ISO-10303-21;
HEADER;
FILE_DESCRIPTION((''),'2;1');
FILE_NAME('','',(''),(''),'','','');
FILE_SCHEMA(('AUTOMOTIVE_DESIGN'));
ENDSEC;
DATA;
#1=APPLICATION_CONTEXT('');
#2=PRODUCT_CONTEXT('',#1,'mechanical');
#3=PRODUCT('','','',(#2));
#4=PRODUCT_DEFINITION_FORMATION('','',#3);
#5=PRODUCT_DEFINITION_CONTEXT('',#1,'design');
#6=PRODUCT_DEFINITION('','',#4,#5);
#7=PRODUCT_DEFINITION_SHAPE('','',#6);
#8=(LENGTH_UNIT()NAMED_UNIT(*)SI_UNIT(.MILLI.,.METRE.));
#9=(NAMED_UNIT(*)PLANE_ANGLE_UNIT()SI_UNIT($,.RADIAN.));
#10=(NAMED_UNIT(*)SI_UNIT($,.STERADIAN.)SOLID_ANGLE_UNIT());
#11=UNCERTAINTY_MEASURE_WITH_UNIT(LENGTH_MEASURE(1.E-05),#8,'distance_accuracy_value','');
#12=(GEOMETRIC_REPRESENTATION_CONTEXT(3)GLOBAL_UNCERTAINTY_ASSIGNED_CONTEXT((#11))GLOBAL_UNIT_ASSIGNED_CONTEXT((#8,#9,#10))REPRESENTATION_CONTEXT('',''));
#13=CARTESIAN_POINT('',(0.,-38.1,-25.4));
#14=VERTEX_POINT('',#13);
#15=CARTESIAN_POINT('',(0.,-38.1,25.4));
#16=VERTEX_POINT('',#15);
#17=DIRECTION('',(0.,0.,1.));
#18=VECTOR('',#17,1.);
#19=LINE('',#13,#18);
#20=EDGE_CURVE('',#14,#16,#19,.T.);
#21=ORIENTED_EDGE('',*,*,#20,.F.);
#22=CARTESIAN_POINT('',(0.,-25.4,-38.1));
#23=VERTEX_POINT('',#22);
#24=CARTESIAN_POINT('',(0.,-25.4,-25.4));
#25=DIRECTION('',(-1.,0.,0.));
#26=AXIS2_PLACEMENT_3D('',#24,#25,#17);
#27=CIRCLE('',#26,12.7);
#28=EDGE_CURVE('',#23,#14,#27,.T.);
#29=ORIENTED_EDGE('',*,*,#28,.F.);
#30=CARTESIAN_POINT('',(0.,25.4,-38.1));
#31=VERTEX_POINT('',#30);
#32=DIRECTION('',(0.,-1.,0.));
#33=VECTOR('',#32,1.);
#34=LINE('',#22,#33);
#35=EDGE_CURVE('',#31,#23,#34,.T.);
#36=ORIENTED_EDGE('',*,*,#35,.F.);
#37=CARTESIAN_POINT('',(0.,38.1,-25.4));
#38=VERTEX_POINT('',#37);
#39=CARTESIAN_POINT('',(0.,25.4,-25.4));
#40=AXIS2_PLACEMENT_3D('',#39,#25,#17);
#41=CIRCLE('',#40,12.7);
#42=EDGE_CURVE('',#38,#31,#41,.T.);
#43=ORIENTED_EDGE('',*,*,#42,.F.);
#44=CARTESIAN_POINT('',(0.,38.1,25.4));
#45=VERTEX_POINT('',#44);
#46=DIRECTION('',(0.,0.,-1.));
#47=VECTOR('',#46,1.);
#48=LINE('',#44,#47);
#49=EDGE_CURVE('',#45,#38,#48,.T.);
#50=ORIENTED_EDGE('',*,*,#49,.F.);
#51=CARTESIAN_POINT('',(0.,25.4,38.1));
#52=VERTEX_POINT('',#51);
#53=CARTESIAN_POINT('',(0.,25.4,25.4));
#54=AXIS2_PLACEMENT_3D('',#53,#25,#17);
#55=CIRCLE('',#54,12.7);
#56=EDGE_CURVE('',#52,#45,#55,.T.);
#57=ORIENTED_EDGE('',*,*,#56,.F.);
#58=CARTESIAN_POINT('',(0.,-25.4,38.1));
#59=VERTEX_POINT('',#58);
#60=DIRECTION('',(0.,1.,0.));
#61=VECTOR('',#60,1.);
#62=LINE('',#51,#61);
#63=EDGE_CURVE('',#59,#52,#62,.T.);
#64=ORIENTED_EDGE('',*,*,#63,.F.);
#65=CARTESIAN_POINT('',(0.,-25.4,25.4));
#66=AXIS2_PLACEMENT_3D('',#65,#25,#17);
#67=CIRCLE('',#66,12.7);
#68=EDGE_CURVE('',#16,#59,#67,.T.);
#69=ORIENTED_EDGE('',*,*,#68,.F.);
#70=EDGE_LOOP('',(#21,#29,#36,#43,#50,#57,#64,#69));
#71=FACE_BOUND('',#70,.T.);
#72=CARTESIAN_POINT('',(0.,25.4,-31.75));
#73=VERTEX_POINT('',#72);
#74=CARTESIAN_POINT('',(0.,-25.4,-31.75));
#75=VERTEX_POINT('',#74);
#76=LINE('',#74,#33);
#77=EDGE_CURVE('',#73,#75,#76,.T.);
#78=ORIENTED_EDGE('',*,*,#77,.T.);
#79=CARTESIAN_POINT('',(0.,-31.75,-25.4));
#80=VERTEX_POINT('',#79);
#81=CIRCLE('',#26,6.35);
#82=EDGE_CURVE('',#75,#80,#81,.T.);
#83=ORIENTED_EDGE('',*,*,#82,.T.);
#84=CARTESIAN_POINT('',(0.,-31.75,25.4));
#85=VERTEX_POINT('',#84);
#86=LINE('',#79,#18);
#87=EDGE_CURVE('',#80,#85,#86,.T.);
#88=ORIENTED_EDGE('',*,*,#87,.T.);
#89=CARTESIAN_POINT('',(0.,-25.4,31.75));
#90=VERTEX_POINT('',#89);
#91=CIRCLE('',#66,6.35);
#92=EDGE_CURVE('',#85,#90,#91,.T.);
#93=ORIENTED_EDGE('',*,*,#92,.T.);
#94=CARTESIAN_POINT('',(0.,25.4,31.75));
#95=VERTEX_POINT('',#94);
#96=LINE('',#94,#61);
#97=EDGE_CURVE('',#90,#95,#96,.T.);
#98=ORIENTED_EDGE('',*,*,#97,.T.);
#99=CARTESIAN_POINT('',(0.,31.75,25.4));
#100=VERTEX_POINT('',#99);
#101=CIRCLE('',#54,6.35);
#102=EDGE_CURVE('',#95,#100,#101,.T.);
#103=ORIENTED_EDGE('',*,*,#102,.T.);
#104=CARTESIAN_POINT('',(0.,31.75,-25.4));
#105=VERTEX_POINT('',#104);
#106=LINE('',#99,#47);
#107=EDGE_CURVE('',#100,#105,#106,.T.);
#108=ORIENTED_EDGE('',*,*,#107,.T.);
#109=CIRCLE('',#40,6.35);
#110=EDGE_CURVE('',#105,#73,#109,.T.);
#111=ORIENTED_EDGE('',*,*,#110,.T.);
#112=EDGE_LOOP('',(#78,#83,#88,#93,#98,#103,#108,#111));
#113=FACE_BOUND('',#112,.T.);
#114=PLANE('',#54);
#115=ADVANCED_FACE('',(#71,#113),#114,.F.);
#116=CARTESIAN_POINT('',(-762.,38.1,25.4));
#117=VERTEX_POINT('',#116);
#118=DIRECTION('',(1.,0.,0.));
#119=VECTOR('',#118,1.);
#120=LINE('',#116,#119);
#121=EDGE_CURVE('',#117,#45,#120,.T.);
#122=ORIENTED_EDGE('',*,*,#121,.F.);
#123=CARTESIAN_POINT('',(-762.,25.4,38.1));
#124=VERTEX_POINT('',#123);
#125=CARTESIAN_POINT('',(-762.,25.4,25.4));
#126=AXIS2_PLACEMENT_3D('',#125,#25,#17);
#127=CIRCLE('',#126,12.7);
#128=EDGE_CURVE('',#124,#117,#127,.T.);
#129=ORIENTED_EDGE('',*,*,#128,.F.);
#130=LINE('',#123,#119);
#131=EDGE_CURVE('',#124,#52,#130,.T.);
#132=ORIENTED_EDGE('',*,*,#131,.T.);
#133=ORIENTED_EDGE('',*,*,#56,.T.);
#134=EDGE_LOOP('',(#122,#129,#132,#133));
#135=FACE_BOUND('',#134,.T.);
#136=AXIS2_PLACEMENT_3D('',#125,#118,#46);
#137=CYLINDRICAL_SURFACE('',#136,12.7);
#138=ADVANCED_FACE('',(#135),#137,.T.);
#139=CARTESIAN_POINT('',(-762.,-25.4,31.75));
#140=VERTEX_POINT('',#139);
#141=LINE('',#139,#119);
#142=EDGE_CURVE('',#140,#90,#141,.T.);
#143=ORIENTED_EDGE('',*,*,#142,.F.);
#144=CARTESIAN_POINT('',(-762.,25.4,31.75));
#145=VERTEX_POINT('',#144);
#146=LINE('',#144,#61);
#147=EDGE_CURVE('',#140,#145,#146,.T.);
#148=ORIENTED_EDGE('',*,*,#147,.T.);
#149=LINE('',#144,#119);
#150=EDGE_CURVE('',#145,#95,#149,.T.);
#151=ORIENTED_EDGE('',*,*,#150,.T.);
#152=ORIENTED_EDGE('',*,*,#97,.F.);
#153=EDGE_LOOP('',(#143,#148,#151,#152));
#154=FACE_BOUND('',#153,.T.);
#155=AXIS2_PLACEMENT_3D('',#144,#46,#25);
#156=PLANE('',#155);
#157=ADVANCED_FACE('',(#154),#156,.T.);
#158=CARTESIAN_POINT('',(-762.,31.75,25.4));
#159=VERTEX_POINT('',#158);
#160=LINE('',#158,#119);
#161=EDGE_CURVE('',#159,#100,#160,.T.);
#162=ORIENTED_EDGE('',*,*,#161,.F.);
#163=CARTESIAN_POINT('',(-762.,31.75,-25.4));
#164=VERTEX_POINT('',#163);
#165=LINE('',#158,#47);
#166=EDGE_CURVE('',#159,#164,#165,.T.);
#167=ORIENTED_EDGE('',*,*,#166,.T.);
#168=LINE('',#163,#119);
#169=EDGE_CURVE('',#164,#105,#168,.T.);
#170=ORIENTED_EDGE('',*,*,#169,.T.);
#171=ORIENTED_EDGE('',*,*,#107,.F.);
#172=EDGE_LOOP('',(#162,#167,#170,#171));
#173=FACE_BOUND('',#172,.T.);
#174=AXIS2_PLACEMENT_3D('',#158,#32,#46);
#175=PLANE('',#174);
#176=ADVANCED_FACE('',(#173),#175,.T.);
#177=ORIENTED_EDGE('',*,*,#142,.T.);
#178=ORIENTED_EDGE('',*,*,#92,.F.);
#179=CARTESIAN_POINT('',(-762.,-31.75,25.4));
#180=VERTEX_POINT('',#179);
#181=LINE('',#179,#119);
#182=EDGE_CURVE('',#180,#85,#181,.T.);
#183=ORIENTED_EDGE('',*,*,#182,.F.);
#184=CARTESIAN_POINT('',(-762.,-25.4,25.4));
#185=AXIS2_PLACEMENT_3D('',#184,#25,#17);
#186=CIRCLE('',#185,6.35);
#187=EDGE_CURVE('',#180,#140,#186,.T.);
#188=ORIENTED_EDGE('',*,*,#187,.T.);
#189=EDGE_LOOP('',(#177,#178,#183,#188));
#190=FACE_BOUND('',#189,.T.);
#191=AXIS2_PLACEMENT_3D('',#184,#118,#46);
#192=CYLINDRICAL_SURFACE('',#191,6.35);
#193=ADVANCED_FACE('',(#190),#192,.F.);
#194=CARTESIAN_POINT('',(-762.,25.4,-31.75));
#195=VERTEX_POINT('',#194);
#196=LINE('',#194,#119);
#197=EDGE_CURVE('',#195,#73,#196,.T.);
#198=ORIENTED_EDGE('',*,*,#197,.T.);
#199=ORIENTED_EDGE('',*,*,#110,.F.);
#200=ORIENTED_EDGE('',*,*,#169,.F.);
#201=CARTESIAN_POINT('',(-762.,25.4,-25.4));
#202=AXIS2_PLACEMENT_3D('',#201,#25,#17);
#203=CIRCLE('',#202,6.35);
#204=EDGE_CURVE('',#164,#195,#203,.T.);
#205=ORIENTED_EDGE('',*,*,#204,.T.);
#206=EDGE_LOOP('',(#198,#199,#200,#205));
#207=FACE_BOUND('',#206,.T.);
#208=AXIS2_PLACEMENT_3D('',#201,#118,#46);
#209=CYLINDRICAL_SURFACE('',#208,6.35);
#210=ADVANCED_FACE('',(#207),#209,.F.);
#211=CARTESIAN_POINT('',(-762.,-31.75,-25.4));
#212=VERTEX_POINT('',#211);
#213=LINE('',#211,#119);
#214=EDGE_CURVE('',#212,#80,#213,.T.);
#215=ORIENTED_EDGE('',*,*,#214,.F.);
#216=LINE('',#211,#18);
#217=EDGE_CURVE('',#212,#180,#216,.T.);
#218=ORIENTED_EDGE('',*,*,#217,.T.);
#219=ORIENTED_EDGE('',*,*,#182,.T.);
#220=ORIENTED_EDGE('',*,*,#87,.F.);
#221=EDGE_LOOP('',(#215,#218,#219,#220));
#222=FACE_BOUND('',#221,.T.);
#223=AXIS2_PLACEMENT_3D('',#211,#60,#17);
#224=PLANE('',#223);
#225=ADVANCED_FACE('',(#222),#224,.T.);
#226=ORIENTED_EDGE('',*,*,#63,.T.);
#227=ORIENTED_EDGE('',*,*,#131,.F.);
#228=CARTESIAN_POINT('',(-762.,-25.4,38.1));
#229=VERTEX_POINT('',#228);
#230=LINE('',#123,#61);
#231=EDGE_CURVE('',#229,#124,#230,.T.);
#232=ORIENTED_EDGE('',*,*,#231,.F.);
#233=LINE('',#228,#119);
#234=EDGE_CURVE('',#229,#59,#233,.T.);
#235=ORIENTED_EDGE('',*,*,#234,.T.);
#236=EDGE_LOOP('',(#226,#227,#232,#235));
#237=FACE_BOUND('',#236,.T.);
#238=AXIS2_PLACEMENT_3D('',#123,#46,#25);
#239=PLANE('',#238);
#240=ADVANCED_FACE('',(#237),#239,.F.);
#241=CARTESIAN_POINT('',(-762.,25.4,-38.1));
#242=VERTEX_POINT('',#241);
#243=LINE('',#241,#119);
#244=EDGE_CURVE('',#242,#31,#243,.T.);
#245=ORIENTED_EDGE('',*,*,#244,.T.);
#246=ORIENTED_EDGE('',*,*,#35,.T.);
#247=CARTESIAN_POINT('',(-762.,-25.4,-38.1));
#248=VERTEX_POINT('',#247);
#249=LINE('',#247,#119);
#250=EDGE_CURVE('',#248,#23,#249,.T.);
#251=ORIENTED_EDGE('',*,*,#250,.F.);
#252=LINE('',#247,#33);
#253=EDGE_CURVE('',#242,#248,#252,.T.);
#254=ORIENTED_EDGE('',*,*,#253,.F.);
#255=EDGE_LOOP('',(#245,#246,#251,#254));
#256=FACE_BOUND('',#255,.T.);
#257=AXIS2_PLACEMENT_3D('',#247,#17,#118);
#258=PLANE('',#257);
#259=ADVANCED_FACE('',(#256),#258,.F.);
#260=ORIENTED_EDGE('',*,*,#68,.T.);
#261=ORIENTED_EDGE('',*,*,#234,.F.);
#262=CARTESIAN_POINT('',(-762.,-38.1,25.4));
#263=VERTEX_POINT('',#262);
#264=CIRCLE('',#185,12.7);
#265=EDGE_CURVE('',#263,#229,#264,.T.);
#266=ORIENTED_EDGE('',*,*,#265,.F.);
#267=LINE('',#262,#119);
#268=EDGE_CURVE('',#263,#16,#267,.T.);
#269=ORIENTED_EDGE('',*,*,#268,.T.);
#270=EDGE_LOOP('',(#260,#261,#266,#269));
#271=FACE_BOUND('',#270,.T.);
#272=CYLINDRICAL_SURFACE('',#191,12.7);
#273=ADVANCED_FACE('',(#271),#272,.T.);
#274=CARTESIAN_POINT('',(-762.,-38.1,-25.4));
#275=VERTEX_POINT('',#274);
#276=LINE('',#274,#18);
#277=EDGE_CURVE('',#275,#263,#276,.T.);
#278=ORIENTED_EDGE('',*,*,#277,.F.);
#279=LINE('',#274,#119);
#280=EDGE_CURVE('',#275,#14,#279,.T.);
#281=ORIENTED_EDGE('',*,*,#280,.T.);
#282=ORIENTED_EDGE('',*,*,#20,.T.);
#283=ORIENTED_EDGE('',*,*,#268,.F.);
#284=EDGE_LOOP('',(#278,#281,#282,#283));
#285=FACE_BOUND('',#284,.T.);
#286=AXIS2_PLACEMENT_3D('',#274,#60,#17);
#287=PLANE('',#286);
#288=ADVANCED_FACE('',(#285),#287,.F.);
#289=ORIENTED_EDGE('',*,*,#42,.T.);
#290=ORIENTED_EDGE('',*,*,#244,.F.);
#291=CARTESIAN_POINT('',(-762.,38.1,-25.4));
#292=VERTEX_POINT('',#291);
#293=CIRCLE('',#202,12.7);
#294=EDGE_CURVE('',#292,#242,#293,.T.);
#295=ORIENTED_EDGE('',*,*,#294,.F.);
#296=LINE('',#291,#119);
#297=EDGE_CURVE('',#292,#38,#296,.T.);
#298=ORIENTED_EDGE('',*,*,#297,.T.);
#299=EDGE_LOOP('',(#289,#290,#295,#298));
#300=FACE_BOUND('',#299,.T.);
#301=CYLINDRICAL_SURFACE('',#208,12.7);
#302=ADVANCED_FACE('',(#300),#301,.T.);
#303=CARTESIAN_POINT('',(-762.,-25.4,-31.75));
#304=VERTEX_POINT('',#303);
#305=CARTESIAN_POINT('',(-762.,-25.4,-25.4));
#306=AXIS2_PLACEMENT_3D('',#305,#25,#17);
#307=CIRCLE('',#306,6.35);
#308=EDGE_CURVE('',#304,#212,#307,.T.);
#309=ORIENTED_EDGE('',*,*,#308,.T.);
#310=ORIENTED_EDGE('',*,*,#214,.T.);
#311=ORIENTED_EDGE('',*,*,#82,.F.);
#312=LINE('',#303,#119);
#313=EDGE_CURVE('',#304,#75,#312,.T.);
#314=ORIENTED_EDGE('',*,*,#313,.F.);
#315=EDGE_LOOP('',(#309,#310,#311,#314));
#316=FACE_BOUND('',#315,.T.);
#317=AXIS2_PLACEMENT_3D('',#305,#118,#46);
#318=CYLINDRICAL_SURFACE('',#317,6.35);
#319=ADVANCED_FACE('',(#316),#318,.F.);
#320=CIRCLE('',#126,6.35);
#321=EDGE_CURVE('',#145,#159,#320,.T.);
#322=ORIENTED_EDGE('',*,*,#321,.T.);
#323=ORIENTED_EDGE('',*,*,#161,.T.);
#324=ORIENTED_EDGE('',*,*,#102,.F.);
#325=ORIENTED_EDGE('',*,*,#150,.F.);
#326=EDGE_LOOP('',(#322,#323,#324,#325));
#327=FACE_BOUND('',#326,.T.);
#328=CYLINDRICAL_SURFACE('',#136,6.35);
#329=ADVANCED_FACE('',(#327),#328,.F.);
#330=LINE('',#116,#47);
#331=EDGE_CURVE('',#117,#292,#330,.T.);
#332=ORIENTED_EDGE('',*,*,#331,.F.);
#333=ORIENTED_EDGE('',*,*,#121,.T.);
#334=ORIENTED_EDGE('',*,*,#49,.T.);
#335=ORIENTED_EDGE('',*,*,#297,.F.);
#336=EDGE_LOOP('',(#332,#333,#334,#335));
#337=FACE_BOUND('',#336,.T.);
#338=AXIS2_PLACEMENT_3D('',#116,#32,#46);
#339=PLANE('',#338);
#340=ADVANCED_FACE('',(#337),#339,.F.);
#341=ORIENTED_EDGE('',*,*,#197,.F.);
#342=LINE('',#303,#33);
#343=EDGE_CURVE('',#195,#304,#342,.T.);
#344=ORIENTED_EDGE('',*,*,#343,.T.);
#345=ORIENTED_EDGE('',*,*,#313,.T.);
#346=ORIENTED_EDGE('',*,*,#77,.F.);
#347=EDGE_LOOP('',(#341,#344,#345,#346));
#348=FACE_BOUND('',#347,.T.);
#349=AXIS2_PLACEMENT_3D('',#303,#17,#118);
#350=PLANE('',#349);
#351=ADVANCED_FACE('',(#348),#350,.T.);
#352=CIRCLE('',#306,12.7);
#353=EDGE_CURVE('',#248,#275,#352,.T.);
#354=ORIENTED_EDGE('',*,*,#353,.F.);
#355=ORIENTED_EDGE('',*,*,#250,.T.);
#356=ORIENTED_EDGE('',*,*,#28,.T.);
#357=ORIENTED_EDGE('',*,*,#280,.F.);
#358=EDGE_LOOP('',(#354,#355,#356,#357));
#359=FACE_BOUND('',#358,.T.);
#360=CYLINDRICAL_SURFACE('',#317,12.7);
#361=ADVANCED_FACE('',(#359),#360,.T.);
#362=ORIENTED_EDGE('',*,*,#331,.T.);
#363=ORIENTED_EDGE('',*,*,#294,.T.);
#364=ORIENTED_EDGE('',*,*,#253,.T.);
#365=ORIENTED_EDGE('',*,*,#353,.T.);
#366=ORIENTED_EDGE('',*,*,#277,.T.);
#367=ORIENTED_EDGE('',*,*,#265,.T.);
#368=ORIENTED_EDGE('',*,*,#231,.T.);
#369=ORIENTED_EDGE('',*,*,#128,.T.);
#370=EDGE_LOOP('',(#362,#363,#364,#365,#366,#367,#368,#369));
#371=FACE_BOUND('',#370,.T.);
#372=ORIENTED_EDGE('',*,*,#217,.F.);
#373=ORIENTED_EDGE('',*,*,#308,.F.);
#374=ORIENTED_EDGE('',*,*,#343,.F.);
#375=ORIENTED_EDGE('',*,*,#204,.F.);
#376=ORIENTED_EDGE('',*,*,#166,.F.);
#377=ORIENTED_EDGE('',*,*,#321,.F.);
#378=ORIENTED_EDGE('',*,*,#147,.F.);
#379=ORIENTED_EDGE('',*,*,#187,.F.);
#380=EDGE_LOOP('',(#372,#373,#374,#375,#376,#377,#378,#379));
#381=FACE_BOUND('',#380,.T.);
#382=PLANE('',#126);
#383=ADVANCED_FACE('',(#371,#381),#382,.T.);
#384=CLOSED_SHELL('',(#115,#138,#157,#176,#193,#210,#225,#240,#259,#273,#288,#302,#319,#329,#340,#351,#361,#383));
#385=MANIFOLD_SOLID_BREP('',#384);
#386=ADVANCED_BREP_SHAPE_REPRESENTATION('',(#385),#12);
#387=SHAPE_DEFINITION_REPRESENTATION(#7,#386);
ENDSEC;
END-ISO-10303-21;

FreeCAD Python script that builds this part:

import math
import FreeCAD as App
import Part
import Sketcher
Q = App.Units.Quantity

doc = App.newDocument("Part")
body = doc.addObject("PartDesign::Body", "Body")

# Sketch on YZ plane
sketch1 = doc.addObject("Sketcher::SketchObject", "Sketch")
body.addObject(sketch1)
sketch1.AttachmentSupport = (doc.YZ_Plane, [""])
sketch1.MapMode = "FlatFace"
sketch1.addGeometry(Part.LineSegment(App.Vector(-38, -25, 0), App.Vector(-38, 25, 0)), False)
sketch1.addGeometry(Part.ArcOfCircle(Part.Circle(App.Vector(-25, 25, 0), App.Vector(0, 0, 1), 13), math.radians(90), math.radians(180)), False)
sketch1.addGeometry(Part.LineSegment(App.Vector(-25, 38, 0), App.Vector(25, 38, 0)), False)
sketch1.addGeometry(Part.ArcOfCircle(Part.Circle(App.Vector(25, 25, 0), App.Vector(0, 0, 1), 13), math.radians(0), math.radians(90)), False)
sketch1.addGeometry(Part.LineSegment(App.Vector(38, 25, 0), App.Vector(38, -25, 0)), False)
sketch1.addGeometry(Part.ArcOfCircle(Part.Circle(App.Vector(25, -25, 0), App.Vector(0, 0, 1), 13), math.radians(-90), math.radians(0)), False)
sketch1.addGeometry(Part.LineSegment(App.Vector(25, -38, 0), App.Vector(-25, -38, 0)), False)
sketch1.addGeometry(Part.ArcOfCircle(Part.Circle(App.Vector(-25, -25, 0), App.Vector(0, 0, 1), 13), math.radians(180), math.radians(270)), False)
sketch1.addGeometry(Part.LineSegment(App.Vector(-32, 25, 0), App.Vector(-32, -25, 0)), False)
sketch1.addGeometry(Part.ArcOfCircle(Part.Circle(App.Vector(-25, -25, 0), App.Vector(0, 0, 1), 6), math.radians(180), math.radians(270)), False)
sketch1.addGeometry(Part.LineSegment(App.Vector(-25, -32, 0), App.Vector(25, -32, 0)), False)
sketch1.addGeometry(Part.ArcOfCircle(Part.Circle(App.Vector(25, -25, 0), App.Vector(0, 0, 1), 6), math.radians(-90), math.radians(0)), False)
sketch1.addGeometry(Part.LineSegment(App.Vector(32, -25, 0), App.Vector(32, 25, 0)), False)
sketch1.addGeometry(Part.ArcOfCircle(Part.Circle(App.Vector(25, 25, 0), App.Vector(0, 0, 1), 6), math.radians(0), math.radians(90)), False)
sketch1.addGeometry(Part.LineSegment(App.Vector(25, 32, 0), App.Vector(-25, 32, 0)), False)
sketch1.addGeometry(Part.ArcOfCircle(Part.Circle(App.Vector(-25, 25, 0), App.Vector(0, 0, 1), 6), math.radians(90), math.radians(180)), False)
sketch1.addConstraint(Sketcher.Constraint("Tangent", 0, 2, 1, 2))
sketch1.addConstraint(Sketcher.Constraint("Tangent", 1, 1, 2, 1))
sketch1.addConstraint(Sketcher.Constraint("Tangent", 2, 2, 3, 2))
sketch1.addConstraint(Sketcher.Constraint("Tangent", 3, 1, 4, 1))
sketch1.addConstraint(Sketcher.Constraint("Tangent", 4, 2, 5, 2))
sketch1.addConstraint(Sketcher.Constraint("Tangent", 5, 1, 6, 1))
sketch1.addConstraint(Sketcher.Constraint("Tangent", 6, 2, 7, 2))
sketch1.addConstraint(Sketcher.Constraint("Tangent", 7, 1, 0, 1))
sketch1.addConstraint(Sketcher.Constraint("Tangent", 8, 2, 9, 1))
sketch1.addConstraint(Sketcher.Constraint("Tangent", 9, 2, 10, 1))
sketch1.addConstraint(Sketcher.Constraint("Tangent", 10, 2, 11, 1))
sketch1.addConstraint(Sketcher.Constraint("Tangent", 11, 2, 12, 1))
sketch1.addConstraint(Sketcher.Constraint("Tangent", 12, 2, 13, 1))
sketch1.addConstraint(Sketcher.Constraint("Tangent", 13, 2, 14, 1))
sketch1.addConstraint(Sketcher.Constraint("Tangent", 14, 2, 15, 1))
sketch1.addConstraint(Sketcher.Constraint("Tangent", 15, 2, 8, 1))
sketch1.addConstraint(Sketcher.Constraint("Vertical", 0))
sketch1.addConstraint(Sketcher.Constraint("Horizontal", 2))
sketch1.addConstraint(Sketcher.Constraint("Vertical", 4))
sketch1.addConstraint(Sketcher.Constraint("Horizontal", 6))
sketch1.addConstraint(Sketcher.Constraint("Vertical", 8))
sketch1.addConstraint(Sketcher.Constraint("Horizontal", 10))
sketch1.addConstraint(Sketcher.Constraint("Vertical", 12))
sketch1.addConstraint(Sketcher.Constraint("Horizontal", 14))
sketch1.addConstraint(Sketcher.Constraint("Coincident", 9, 3, 7, 3))
sketch1.addConstraint(Sketcher.Constraint("Coincident", 11, 3, 5, 3))
sketch1.addConstraint(Sketcher.Constraint("Coincident", 13, 3, 3, 3))
sketch1.addConstraint(Sketcher.Constraint("Equal", 1, 3))
sketch1.addConstraint(Sketcher.Constraint("Equal", 3, 5))
sketch1.addConstraint(Sketcher.Constraint("Equal", 5, 7))
sketch1.addConstraint(Sketcher.Constraint("Equal", 13, 15))
sketch1.addConstraint(Sketcher.Constraint("Symmetric", 1, 3, 5, 3, -1, 1))
sketch1.addConstraint(Sketcher.Constraint("Equal", 14, 0))
sketch1.addConstraint(Sketcher.Constraint("Radius", 1, Q("0.5 in")))
sketch1.addConstraint(Sketcher.Constraint("DistanceX", 2, 1, 2, 2, Q("2 in")))
sketch1.addConstraint(Sketcher.Constraint("Radius", 9, Q("0.25 in")))
pad1 = doc.addObject("PartDesign::Pad", "Pad")
body.addObject(pad1)
pad1.Profile = sketch1
pad1.Length = Q("30 in")
pad1.Reversed = True

doc.recompute()
